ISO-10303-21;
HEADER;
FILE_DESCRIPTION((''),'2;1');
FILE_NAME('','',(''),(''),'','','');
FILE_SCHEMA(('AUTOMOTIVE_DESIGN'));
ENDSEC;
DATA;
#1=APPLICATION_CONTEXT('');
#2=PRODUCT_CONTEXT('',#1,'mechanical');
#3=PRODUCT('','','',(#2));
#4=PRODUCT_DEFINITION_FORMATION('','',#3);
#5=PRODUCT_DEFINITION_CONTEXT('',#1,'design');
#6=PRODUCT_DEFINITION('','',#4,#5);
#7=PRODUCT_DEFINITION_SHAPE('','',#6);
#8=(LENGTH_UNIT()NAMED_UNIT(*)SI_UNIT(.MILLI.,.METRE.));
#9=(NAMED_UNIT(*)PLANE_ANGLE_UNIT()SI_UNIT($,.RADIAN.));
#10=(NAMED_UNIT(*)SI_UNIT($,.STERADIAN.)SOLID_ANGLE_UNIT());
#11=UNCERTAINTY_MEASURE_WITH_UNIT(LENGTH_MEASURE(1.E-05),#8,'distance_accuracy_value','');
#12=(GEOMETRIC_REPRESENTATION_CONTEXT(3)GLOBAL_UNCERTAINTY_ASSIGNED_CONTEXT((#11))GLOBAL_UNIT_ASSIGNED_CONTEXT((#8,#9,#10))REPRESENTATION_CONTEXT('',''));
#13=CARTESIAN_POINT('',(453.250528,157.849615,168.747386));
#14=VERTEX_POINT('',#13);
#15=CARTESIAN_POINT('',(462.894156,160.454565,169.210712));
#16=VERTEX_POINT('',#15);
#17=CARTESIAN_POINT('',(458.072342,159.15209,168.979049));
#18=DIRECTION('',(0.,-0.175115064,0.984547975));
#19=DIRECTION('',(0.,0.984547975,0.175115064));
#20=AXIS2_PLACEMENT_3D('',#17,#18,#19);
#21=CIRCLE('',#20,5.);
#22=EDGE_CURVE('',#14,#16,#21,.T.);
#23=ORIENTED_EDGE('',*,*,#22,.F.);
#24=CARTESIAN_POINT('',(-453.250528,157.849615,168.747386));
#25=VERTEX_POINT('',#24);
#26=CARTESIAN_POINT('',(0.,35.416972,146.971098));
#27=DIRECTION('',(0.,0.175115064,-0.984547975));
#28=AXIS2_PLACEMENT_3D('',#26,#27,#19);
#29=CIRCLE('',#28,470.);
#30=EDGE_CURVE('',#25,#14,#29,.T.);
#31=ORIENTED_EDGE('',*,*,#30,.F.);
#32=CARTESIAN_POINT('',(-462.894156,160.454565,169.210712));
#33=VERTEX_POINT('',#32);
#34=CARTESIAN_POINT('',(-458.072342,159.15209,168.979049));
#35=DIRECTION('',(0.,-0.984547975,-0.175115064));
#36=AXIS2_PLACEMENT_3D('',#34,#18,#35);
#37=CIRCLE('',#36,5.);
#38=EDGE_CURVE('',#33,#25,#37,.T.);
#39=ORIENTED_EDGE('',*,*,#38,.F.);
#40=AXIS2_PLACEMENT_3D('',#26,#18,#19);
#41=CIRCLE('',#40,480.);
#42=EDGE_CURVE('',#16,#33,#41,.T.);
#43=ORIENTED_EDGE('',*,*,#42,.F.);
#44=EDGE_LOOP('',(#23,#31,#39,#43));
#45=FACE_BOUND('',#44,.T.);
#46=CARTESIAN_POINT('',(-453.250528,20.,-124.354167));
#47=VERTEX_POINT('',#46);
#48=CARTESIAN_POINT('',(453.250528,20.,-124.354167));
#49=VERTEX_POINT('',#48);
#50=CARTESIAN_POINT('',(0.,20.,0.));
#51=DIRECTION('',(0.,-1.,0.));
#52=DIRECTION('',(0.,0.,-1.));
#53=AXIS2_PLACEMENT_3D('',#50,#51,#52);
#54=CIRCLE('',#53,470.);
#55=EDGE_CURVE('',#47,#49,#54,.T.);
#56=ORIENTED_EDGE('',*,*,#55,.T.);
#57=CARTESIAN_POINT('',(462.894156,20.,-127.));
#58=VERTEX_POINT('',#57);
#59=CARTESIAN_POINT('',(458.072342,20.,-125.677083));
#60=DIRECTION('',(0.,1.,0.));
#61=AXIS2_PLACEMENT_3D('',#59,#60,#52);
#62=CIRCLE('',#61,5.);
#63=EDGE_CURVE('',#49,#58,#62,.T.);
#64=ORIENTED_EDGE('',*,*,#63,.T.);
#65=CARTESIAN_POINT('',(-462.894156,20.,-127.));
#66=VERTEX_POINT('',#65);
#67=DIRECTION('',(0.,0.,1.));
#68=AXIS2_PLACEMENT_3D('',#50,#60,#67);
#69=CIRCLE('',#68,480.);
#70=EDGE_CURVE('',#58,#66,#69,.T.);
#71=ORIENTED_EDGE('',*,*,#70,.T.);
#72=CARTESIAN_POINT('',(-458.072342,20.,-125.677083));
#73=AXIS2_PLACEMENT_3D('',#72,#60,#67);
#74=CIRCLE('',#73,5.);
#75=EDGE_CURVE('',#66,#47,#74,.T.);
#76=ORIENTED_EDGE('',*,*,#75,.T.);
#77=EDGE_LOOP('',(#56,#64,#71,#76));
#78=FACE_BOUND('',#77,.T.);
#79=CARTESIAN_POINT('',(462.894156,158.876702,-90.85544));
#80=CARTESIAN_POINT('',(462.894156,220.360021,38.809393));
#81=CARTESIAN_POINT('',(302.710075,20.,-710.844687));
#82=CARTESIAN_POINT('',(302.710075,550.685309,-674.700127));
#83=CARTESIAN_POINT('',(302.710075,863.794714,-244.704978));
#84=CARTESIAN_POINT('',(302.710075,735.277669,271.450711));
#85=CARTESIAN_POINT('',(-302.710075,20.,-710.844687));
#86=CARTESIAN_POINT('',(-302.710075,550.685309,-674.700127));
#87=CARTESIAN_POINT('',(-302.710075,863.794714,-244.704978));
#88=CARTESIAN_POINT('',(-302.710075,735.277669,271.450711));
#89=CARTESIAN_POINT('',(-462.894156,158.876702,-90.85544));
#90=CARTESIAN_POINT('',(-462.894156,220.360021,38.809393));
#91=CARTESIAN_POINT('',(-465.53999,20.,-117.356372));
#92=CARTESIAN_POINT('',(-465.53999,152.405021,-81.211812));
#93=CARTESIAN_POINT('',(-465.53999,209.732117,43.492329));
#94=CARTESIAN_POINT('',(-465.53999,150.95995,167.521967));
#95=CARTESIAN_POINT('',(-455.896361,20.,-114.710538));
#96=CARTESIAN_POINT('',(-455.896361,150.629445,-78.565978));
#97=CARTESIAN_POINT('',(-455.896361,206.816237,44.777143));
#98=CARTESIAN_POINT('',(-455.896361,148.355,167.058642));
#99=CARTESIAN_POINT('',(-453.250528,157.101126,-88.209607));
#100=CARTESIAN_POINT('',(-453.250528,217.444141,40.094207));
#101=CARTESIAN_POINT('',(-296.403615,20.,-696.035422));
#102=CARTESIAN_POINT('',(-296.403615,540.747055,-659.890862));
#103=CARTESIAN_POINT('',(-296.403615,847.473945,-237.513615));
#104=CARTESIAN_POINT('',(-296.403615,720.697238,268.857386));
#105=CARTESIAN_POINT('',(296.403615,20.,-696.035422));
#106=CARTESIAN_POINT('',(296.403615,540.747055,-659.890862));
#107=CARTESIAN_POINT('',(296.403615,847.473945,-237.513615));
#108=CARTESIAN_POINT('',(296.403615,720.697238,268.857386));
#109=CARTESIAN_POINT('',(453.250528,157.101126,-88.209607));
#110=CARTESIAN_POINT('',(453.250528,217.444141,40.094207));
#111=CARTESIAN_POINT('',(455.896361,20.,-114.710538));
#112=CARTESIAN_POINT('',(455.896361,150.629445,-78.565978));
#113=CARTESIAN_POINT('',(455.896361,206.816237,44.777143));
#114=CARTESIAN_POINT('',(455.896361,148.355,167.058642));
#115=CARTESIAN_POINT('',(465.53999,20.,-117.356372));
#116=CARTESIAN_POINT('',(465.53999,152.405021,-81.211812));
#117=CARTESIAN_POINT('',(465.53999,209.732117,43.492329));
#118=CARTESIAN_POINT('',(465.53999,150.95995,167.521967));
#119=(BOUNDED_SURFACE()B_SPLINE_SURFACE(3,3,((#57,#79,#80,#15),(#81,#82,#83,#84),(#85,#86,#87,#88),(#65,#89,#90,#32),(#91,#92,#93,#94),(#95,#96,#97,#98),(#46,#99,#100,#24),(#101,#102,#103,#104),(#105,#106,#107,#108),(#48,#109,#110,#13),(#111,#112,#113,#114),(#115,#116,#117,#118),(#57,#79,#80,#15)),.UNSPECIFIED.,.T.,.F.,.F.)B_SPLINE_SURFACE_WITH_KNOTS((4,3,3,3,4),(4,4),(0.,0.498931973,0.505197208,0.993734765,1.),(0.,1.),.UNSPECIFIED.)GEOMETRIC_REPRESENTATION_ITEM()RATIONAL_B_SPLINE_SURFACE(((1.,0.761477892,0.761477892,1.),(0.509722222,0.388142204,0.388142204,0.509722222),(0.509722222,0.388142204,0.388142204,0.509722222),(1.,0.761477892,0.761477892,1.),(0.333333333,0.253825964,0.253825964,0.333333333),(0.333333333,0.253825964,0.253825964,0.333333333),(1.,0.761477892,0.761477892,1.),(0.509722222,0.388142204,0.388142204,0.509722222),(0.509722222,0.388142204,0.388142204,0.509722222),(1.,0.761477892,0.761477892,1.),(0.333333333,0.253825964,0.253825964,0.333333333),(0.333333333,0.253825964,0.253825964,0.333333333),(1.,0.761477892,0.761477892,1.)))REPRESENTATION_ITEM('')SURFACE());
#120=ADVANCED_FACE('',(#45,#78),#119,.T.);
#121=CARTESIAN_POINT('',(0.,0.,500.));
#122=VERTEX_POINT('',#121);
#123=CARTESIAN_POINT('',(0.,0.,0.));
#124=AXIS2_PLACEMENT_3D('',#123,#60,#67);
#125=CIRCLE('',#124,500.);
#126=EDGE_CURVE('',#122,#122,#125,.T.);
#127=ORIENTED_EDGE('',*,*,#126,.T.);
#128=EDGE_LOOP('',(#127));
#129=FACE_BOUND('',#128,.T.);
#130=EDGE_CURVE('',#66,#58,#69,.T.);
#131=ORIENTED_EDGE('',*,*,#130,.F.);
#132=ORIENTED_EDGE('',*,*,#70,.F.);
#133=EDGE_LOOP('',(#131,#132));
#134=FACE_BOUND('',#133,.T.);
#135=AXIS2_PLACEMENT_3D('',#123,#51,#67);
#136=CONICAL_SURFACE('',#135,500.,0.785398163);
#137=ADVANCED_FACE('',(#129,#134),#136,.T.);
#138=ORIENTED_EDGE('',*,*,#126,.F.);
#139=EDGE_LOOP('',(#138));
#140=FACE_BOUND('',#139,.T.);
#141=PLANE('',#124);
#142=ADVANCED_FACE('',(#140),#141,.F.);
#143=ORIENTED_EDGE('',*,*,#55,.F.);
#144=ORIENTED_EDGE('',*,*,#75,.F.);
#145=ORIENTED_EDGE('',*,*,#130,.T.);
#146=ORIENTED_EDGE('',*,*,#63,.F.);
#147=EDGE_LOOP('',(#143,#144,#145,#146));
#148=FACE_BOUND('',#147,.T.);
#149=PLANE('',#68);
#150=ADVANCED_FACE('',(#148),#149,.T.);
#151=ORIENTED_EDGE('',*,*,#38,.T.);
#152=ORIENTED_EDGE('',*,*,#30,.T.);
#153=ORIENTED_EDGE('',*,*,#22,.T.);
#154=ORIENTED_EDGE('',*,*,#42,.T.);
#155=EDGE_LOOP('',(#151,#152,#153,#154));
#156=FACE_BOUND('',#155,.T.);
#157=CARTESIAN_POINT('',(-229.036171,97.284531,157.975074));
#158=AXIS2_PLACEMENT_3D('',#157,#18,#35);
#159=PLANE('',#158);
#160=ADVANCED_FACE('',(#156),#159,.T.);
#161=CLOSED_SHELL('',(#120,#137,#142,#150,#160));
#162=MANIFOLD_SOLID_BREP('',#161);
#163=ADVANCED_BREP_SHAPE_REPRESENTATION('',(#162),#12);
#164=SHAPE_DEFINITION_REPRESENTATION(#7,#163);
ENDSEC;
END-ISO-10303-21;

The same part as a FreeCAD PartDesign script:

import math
import FreeCAD as App
import Part
import Sketcher

V = App.Vector

doc = App.newDocument("Part")
body = doc.addObject("PartDesign::Body", "Body")

# Sketch on XZ plane
sketch1 = doc.addObject("Sketcher::SketchObject", "Sketch")
body.addObject(sketch1)
sketch1.AttachmentSupport = (doc.XZ_Plane, [""])
sketch1.MapMode = "FlatFace"
sketch1.addGeometry(Part.Circle(V(0, 0, 0), V(0, 0, 1), 500), False)
sketch1.addConstraint([
    Sketcher.Constraint("Coincident", 0, 3, -1, 1),
    Sketcher.Constraint("Diameter", 0, 1000.0),
])
pad1 = doc.addObject("PartDesign::Pad", "Pad")
body.addObject(pad1)
pad1.Profile = sketch1
pad1.Length = 20
pad1.Reversed = True
pad1.TaperAngle = -45

# Sketch on XZ plane
sketch2 = doc.addObject("Sketcher::SketchObject", "Sketch001")
body.addObject(sketch2)
sketch2.AttachmentSupport = (doc.XZ_Plane, [""])
sketch2.MapMode = "FlatFace"
sketch2.AttachmentOffset = App.Placement(V(0, 0, -20), App.Rotation())
sketch2.addGeometry([
    Part.ArcOfCircle(Part.Circle(V(0, 0, 0), V(0, 0, 1), 480), math.radians(-165), math.radians(-15)),
    Part.ArcOfCircle(Part.Circle(V(-458, -126, 0), V(0, 0, 1), 5), math.radians(15), math.radians(195)),
    Part.ArcOfCircle(Part.Circle(V(0, 0, 0), V(0, 0, 1), 470), math.radians(-165), math.radians(-15)),
    Part.ArcOfCircle(Part.Circle(V(458, -126, 0), V(0, 0, 1), 5), math.radians(-15), math.radians(165)),
], False)
sketch2.addConstraint([
    Sketcher.Constraint("Tangent", 0, 1, 1, 2),
    Sketcher.Constraint("Tangent", 1, 1, 2, 1),
    Sketcher.Constraint("Tangent", 2, 2, 3, 2),
    Sketcher.Constraint("Tangent", 3, 1, 0, 2),
    Sketcher.Constraint("Coincident", 0, 3, -1, 1),
    Sketcher.Constraint("Coincident", 2, 3, -1, 1),
    Sketcher.Constraint("Horizontal", 1, 3, 3, 3),
    Sketcher.Constraint("Radius", 0, 480.0),
    Sketcher.Constraint("Radius", 1, 5.0),
    Sketcher.Constraint("DistanceY", 3, 1, -1, 1, 127.0),
])

# Sketch on YZ plane
sketch3 = doc.addObject("Sketcher::SketchObject", "Sketch002")
body.addObject(sketch3)
sketch3.AttachmentSupport = (doc.YZ_Plane, [""])
sketch3.MapMode = "FlatFace"
sketch3.addGeometry(Part.ArcOfCircle(Part.Circle(V(-33.859994, 79.943959, 0), V(0, 0, 1), 562.528342), math.radians(-84.505726), math.radians(15.579628)), False)
sketch3.addConstraint([
    Sketcher.Constraint("DistanceX", -1, 1, 0, 1, 20.0),
    Sketcher.Constraint("DistanceY", 0, 1, -1, 1, 480.0),
    Sketcher.Constraint("DistanceX", -1, 1, 0, 2, 508.0),
    Sketcher.Constraint("Radius", 0, 562.528342),
    Sketcher.Constraint("DistanceY", -1, 1, 0, 3, 79.943959),
])
doc.recompute()

additivepipe = doc.addObject("PartDesign::AdditivePipe", "AdditivePipe")
body.addObject(additivepipe)
additivepipe.Profile = sketch2
additivepipe.Spine = (sketch3, ["Edge1"])

doc.recompute()
